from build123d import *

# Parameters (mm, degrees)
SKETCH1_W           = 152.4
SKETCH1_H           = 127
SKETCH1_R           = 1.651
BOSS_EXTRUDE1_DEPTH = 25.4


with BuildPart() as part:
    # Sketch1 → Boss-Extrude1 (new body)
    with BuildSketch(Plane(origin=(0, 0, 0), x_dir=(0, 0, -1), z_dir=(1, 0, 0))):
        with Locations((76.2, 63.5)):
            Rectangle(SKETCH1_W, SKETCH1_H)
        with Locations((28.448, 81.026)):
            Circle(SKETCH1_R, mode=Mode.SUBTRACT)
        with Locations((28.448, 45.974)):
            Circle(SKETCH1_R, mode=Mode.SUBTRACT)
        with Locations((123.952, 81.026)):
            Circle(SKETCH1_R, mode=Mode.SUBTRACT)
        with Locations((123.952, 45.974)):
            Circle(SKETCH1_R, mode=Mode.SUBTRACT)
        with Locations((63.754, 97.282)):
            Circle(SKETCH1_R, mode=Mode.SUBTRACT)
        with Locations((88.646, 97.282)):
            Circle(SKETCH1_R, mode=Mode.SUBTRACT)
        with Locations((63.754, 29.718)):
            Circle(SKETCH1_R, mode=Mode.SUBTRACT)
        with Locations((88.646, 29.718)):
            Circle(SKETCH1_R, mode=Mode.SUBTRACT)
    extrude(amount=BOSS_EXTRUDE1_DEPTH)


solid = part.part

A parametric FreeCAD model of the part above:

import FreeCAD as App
import Part
import Sketcher
Q = App.Units.Quantity


def add_polygon(sketch, points):
    """Adds a closed chain of lines whose ends are joined by coincident constraints."""
    first, n = sketch.GeometryCount, len(points)
    for a, b in zip(points, points[1:] + points[:1]):
        sketch.addGeometry(Part.LineSegment(App.Vector(*a, 0), App.Vector(*b, 0)), False)
    for i in range(n):
        sketch.addConstraint(Sketcher.Constraint("Coincident", first + i, 2, first + (i + 1) % n, 1))

doc = App.newDocument("Part")
body = doc.addObject("PartDesign::Body", "Body")

sketch1 = doc.addObject("Sketcher::SketchObject", "Sketch")
body.addObject(sketch1)
sketch1.AttachmentSupport = (doc.YZ_Plane, [""])
sketch1.MapMode = "FlatFace"
add_polygon(sketch1, [(127, 0), (0, 0), (0, -152.4), (127, -152.4)])
sketch1.addGeometry(Part.Circle(App.Vector(29.718, -63.754, 0), App.Vector(0, 0, 1), 1.651), False)
sketch1.addGeometry(Part.Circle(App.Vector(45.974, -28.448, 0), App.Vector(0, 0, 1), 1.651), False)
sketch1.addGeometry(Part.Circle(App.Vector(29.718, -88.646, 0), App.Vector(0, 0, 1), 1.651), False)
sketch1.addGeometry(Part.Circle(App.Vector(45.974, -123.952, 0), App.Vector(0, 0, 1), 1.651), False)
sketch1.addGeometry(Part.Circle(App.Vector(81.026, -28.448, 0), App.Vector(0, 0, 1), 1.651), False)
sketch1.addGeometry(Part.Circle(App.Vector(97.282, -63.754, 0), App.Vector(0, 0, 1), 1.651), False)
sketch1.addGeometry(Part.Circle(App.Vector(81.026, -123.952, 0), App.Vector(0, 0, 1), 1.651), False)
sketch1.addGeometry(Part.Circle(App.Vector(97.282, -88.646, 0), App.Vector(0, 0, 1), 1.651), False)
sketch1.addConstraint([
    Sketcher.Constraint("Horizontal", 0),
    Sketcher.Constraint("Vertical", 1),
    Sketcher.Constraint("Horizontal", 2),
    Sketcher.Constraint("Vertical", 3),
    Sketcher.Constraint("Coincident", 0, 2, -1, 1),
    Sketcher.Constraint("Equal", 4, 5),
    Sketcher.Constraint("Equal", 5, 6),
    Sketcher.Constraint("Equal", 6, 7),
    Sketcher.Constraint("Equal", 7, 8),
    Sketcher.Constraint("Equal", 8, 9),
    Sketcher.Constraint("Equal", 9, 10),
    Sketcher.Constraint("Equal", 10, 11),
    Sketcher.Constraint("Horizontal", 5, 3, 8, 3),
    Sketcher.Constraint("Horizontal", 4, 3, 9, 3),
    Sketcher.Constraint("Horizontal", 7, 3, 10, 3),
    Sketcher.Constraint("Horizontal", 6, 3, 11, 3),
    Sketcher.Constraint("Vertical", 4, 3, 6, 3),
    Sketcher.Constraint("Vertical", 5, 3, 7, 3),
    Sketcher.Constraint("Vertical", 8, 3, 10, 3),
    Sketcher.Constraint("Vertical", 9, 3, 11, 3),
    Sketcher.Constraint("Diameter", 4, Q("0.13 in")),
    Sketcher.Constraint("DistanceX", 0, 2, 0, 1, Q("5 in")),
    Sketcher.Constraint("DistanceY", 1, 2, 1, 1, Q("6 in")),
    Sketcher.Constraint("DistanceX", -1, 1, 4, 3, Q("1.17 in")),
    Sketcher.Constraint("DistanceY", 4, 3, -1, 1, Q("2.51 in")),
    Sketcher.Constraint("DistanceX", -1, 1, 5, 3, Q("1.81 in")),
    Sketcher.Constraint("DistanceY", 5, 3, -1, 1, Q("1.12 in")),
    Sketcher.Constraint("DistanceY", 6, 3, -1, 1, Q("3.49 in")),
    Sketcher.Constraint("DistanceY", 7, 3, -1, 1, Q("4.88 in")),
    Sketcher.Constraint("DistanceX", -1, 1, 8, 3, Q("3.19 in")),
    Sketcher.Constraint("DistanceX", -1, 1, 9, 3, Q("3.83 in")),
])
pad1 = doc.addObject("PartDesign::Pad", "Pad")
body.addObject(pad1)
pad1.Profile = sketch1
pad1.Length = Q("1 in")

doc.recompute()
